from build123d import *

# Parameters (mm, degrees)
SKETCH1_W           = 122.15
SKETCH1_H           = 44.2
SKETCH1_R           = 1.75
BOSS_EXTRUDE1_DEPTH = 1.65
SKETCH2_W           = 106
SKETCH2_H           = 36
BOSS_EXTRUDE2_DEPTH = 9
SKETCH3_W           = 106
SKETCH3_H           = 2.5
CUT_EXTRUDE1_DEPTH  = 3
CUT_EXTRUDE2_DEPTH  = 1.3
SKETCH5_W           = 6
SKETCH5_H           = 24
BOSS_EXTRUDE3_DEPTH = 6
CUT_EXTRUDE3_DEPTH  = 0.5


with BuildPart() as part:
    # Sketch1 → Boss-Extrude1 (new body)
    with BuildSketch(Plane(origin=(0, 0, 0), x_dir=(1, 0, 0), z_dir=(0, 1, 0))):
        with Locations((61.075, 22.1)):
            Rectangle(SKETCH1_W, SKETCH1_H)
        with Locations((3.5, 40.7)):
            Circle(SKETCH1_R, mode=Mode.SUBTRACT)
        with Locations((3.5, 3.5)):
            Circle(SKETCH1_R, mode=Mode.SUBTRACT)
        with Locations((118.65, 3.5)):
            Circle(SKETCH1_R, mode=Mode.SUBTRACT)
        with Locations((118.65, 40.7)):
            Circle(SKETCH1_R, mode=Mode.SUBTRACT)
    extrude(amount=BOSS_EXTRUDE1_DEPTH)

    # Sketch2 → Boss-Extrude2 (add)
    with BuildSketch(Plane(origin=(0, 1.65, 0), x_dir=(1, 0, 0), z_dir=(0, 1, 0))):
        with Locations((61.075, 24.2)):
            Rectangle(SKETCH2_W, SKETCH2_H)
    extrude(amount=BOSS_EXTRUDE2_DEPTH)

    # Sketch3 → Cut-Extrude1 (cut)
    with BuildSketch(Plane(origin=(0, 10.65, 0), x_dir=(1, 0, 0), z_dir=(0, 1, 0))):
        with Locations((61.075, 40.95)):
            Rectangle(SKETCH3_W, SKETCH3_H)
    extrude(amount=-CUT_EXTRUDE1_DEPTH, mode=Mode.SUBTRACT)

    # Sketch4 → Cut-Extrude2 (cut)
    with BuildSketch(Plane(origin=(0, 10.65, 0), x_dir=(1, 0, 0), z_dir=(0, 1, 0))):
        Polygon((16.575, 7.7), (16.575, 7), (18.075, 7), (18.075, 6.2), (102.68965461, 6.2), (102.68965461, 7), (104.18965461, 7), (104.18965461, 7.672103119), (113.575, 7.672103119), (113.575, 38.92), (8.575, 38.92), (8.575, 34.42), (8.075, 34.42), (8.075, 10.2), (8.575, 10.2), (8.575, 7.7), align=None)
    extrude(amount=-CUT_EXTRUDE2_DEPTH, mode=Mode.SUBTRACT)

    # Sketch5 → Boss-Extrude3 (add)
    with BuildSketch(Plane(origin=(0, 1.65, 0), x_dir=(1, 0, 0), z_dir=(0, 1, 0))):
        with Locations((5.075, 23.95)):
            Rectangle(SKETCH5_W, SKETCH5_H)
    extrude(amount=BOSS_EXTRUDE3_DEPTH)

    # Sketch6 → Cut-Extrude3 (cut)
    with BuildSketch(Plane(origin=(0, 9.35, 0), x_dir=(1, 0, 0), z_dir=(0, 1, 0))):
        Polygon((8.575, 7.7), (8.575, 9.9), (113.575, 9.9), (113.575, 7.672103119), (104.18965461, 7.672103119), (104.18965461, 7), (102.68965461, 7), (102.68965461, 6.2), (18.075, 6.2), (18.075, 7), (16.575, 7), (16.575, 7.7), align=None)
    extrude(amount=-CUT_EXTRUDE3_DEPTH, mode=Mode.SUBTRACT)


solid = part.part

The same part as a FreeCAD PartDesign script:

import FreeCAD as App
import Part
import Sketcher

V = App.Vector
Q = App.Units.Quantity


def add_polygon(sketch, points):
    """Adds a closed chain of lines whose ends are joined by coincident constraints."""
    first, n = sketch.GeometryCount, len(points)
    for a, b in zip(points, points[1:] + points[:1]):
        sketch.addGeometry(Part.LineSegment(App.Vector(*a, 0), App.Vector(*b, 0)), False)
    for i in range(n):
        sketch.addConstraint(Sketcher.Constraint("Coincident", first + i, 2, first + (i + 1) % n, 1))

doc = App.newDocument("Part")
body = doc.addObject("PartDesign::Body", "Body")

sketch1 = doc.addObject("Sketcher::SketchObject", "Sketch")
body.addObject(sketch1)
sketch1.AttachmentSupport = (doc.XZ_Plane, [""])
sketch1.MapMode = "FlatFace"
add_polygon(sketch1, [(0, -44.2), (0, 0), (122.2, 0), (122.2, -44.2)])
sketch1.addGeometry(Part.Circle(V(3.5, -3.5, 0), V(0, 0, 1), 1.8), False)
sketch1.addGeometry(Part.Circle(V(118.7, -3.5, 0), V(0, 0, 1), 1.8), False)
sketch1.addGeometry(Part.Circle(V(3.5, -40.7, 0), V(0, 0, 1), 1.8), False)
sketch1.addGeometry(Part.Circle(V(118.7, -40.7, 0), V(0, 0, 1), 1.8), False)
sketch1.addConstraint([
    Sketcher.Constraint("Vertical", 0),
    Sketcher.Constraint("Horizontal", 1),
    Sketcher.Constraint("Vertical", 2),
    Sketcher.Constraint("Horizontal", 3),
    Sketcher.Constraint("Coincident", 0, 2, -1, 1),
    Sketcher.Constraint("Equal", 4, 5),
    Sketcher.Constraint("Equal", 5, 6),
    Sketcher.Constraint("Equal", 6, 7),
    Sketcher.Constraint("Horizontal", 4, 3, 5, 3),
    Sketcher.Constraint("Horizontal", 6, 3, 7, 3),
    Sketcher.Constraint("Vertical", 4, 3, 6, 3),
    Sketcher.Constraint("Vertical", 5, 3, 7, 3),
    Sketcher.Constraint("Diameter", 4, Q("3.5 mm")),
    Sketcher.Constraint("DistanceY", 0, 1, 0, 2, Q("44.2 mm")),
    Sketcher.Constraint("DistanceX", 1, 1, 1, 2, Q("122.15 mm")),
    Sketcher.Constraint("DistanceX", -1, 1, 4, 3, Q("3.5 mm")),
    Sketcher.Constraint("DistanceY", 4, 3, -1, 1, Q("3.5 mm")),
    Sketcher.Constraint("DistanceY", 6, 3, -1, 1, Q("40.7 mm")),
    Sketcher.Constraint("DistanceX", 5, 3, 1, 2, Q("3.5 mm")),
])
pad1 = doc.addObject("PartDesign::Pad", "Pad")
body.addObject(pad1)
pad1.Profile = sketch1
pad1.Length = 1.65
pad1.Reversed = True

sketch2 = doc.addObject("Sketcher::SketchObject", "Sketch001")
body.addObject(sketch2)
sketch2.AttachmentSupport = (doc.XZ_Plane, [""])
sketch2.MapMode = "FlatFace"
sketch2.AttachmentOffset = App.Placement(V(0, 0, -1.65), App.Rotation())
add_polygon(sketch2, [(8, -42), (8, -6), (114, -6), (114, -42)])
sketch2.addConstraint([
    Sketcher.Constraint("Vertical", 0),
    Sketcher.Constraint("Horizontal", 1),
    Sketcher.Constraint("Vertical", 2),
    Sketcher.Constraint("Horizontal", 3),
    Sketcher.Constraint("DistanceX", 1, 1, 1, 2, Q("106 mm")),
    Sketcher.Constraint("DistanceY", 0, 1, 0, 2, Q("36 mm")),
    Sketcher.Constraint("DistanceY", 0, 2, -1, 1, Q("6.2 mm")),
    Sketcher.Constraint("DistanceX", -1, 1, 0, 2, Q("8.075 mm")),
])
pad2 = doc.addObject("PartDesign::Pad", "Pad001")
body.addObject(pad2)
pad2.Profile = sketch2
pad2.Length = 9
pad2.Reversed = True

sketch3 = doc.addObject("Sketcher::SketchObject", "Sketch002")
body.addObject(sketch3)
sketch3.AttachmentSupport = (doc.XZ_Plane, [""])
sketch3.MapMode = "FlatFace"
sketch3.AttachmentOffset = App.Placement(V(0, 0, -10.65), App.Rotation())
add_polygon(sketch3, [(8.1, -42.2), (8.1, -39.7), (114.1, -39.7), (114.1, -42.2)])
sketch3.addConstraint([
    Sketcher.Constraint("Vertical", 0),
    Sketcher.Constraint("Horizontal", 1),
    Sketcher.Constraint("Vertical", 2),
    Sketcher.Constraint("Horizontal", 3),
    Sketcher.Constraint("DistanceX", 1, 1, 1, 2, Q("106 mm")),
    Sketcher.Constraint("DistanceY", 0, 1, 0, 2, Q("2.5 mm")),
    Sketcher.Constraint("DistanceY", 0, 2, -1, 1, Q("39.7 mm")),
    Sketcher.Constraint("DistanceX", -1, 1, 0, 2, Q("8.075 mm")),
])
pocket1 = doc.addObject("PartDesign::Pocket", "Pocket")
body.addObject(pocket1)
pocket1.Profile = sketch3
pocket1.Length = 3
pocket1.Reversed = True

sketch4 = doc.addObject("Sketcher::SketchObject", "Sketch003")
body.addObject(sketch4)
sketch4.AttachmentSupport = (doc.XZ_Plane, [""])
sketch4.MapMode = "FlatFace"
sketch4.AttachmentOffset = App.Placement(V(0, 0, -10.65), App.Rotation())
add_polygon(sketch4, [(16.6, -7.7), (16.6, -7), (18.1, -7), (18.1, -6.2), (102.7, -6.2), (102.7, -7), (104.2, -7), (104.2, -7.7), (113.6, -7.7), (113.6, -38.9), (8.6, -38.9), (8.6, -34.4), (8.1, -34.4), (8.1, -10.2), (8.6, -10.2), (8.6, -7.7)])
sketch4.addConstraint([
    Sketcher.Constraint("Vertical", 0),
    Sketcher.Constraint("Horizontal", 1),
    Sketcher.Constraint("Vertical", 2),
    Sketcher.Constraint("Horizontal", 3),
    Sketcher.Constraint("Vertical", 4),
    Sketcher.Constraint("Horizontal", 5),
    Sketcher.Constraint("Vertical", 6),
    Sketcher.Constraint("Horizontal", 7),
    Sketcher.Constraint("Vertical", 8),
    Sketcher.Constraint("Horizontal", 9),
    Sketcher.Constraint("Vertical", 10),
    Sketcher.Constraint("Horizontal", 11),
    Sketcher.Constraint("Vertical", 12),
    Sketcher.Constraint("Horizontal", 13),
    Sketcher.Constraint("Vertical", 14),
    Sketcher.Constraint("Horizontal", 15),
    Sketcher.Constraint("Horizontal", 1, 2, 4, 2),
    Sketcher.Constraint("Vertical", 10, 2, 13, 2),
    Sketcher.Constraint("Equal", 1, 5),
    Sketcher.Constraint("DistanceX", 9, 2, 9, 1, Q("105 mm")),
    Sketcher.Constraint("DistanceX", 15, 1, 15, 2, Q("8 mm")),
    Sketcher.Constraint("DistanceX", 1, 1, 1, 2, Q("1.5 mm")),
    Sketcher.Constraint("DistanceX", 11, 2, 11, 1, Q("0.5 mm")),
    Sketcher.Constraint("DistanceY", 0, 1, 0, 2, Q("0.7 mm")),
    Sketcher.Constraint("DistanceY", 2, 1, 2, 2, Q("0.8 mm")),
    Sketcher.Constraint("DistanceY", 10, 1, 10, 2, Q("4.5 mm")),
    Sketcher.Constraint("DistanceY", 14, 1, 14, 2, Q("2.5 mm")),
    Sketcher.Constraint("DistanceY", 0, 2, -1, 1, Q("7 mm")),
    Sketcher.Constraint("DistanceY", 12, 1, 12, 2, Q("24.22 mm")),
    Sketcher.Constraint("DistanceX", -1, 1, 0, 2, Q("16.575 mm")),
    Sketcher.Constraint("DistanceX", 3, 1, 3, 2, Q("84.614655 mm")),
    Sketcher.Constraint("DistanceY", 6, 2, 6, 1, Q("0.672103 mm")),
])
pocket2 = doc.addObject("PartDesign::Pocket", "Pocket001")
body.addObject(pocket2)
pocket2.Profile = sketch4
pocket2.Length = 1.3
pocket2.Reversed = True

sketch5 = doc.addObject("Sketcher::SketchObject", "Sketch004")
body.addObject(sketch5)
sketch5.AttachmentSupport = (doc.XZ_Plane, [""])
sketch5.MapMode = "FlatFace"
sketch5.AttachmentOffset = App.Placement(V(0, 0, -1.65), App.Rotation())
add_polygon(sketch5, [(2, -36), (2, -12), (8, -12), (8, -36)])
sketch5.addConstraint([
    Sketcher.Constraint("Vertical", 0),
    Sketcher.Constraint("Horizontal", 1),
    Sketcher.Constraint("Vertical", 2),
    Sketcher.Constraint("Horizontal", 3),
    Sketcher.Constraint("DistanceX", 1, 1, 1, 2, Q("6 mm")),
    Sketcher.Constraint("DistanceY", 0, 1, 0, 2, Q("24 mm")),
    Sketcher.Constraint("DistanceY", 0, 2, -1, 1, Q("11.95 mm")),
    Sketcher.Constraint("DistanceX", -1, 1, 0, 2, Q("2.075 mm")),
])
pad3 = doc.addObject("PartDesign::Pad", "Pad002")
body.addObject(pad3)
pad3.Profile = sketch5
pad3.Length = 6
pad3.Reversed = True

sketch6 = doc.addObject("Sketcher::SketchObject", "Sketch005")
body.addObject(sketch6)
sketch6.AttachmentSupport = (doc.XZ_Plane, [""])
sketch6.MapMode = "FlatFace"
sketch6.AttachmentOffset = App.Placement(V(0, 0, -9.35), App.Rotation())
add_polygon(sketch6, [(8.6, -9.9), (8.6, -7.7), (16.6, -7.7), (16.6, -7), (18.1, -7), (18.1, -6.2), (102.7, -6.2), (102.7, -7), (104.2, -7), (104.2, -7.7), (113.6, -7.7), (113.6, -9.9)])
sketch6.addConstraint([
    Sketcher.Constraint("Vertical", 0),
    Sketcher.Constraint("Horizontal", 1),
    Sketcher.Constraint("Vertical", 2),
    Sketcher.Constraint("Horizontal", 3),
    Sketcher.Constraint("Vertical", 4),
    Sketcher.Constraint("Horizontal", 5),
    Sketcher.Constraint("Vertical", 6),
    Sketcher.Constraint("Horizontal", 7),
    Sketcher.Constraint("Vertical", 8),
    Sketcher.Constraint("Horizontal", 9),
    Sketcher.Constraint("Vertical", 10),
    Sketcher.Constraint("Horizontal", 11),
    Sketcher.Constraint("Horizontal", 3, 2, 6, 2),
    Sketcher.Constraint("Equal", 3, 7),
    Sketcher.Constraint("DistanceX", 1, 1, 1, 2, Q("8 mm")),
    Sketcher.Constraint("DistanceX", 11, 2, 11, 1, Q("105 mm")),
    Sketcher.Constraint("DistanceX", 3, 1, 3, 2, Q("1.5 mm")),
    Sketcher.Constraint("DistanceY", 0, 1, 0, 2, Q("2.2 mm")),
    Sketcher.Constraint("DistanceY", 2, 1, 2, 2, Q("0.7 mm")),
    Sketcher.Constraint("DistanceY", 4, 1, 4, 2, Q("0.8 mm")),
    Sketcher.Constraint("DistanceY", 2, 2, -1, 1, Q("7 mm")),
    Sketcher.Constraint("DistanceX", -1, 1, 0, 2, Q("8.575 mm")),
    Sketcher.Constraint("DistanceX", 5, 1, 5, 2, Q("84.614655 mm")),
    Sketcher.Constraint("DistanceY", 8, 2, 8, 1, Q("0.672103 mm")),
])
pocket3 = doc.addObject("PartDesign::Pocket", "Pocket002")
body.addObject(pocket3)
pocket3.Profile = sketch6
pocket3.Length = 0.5
pocket3.Reversed = True

doc.recompute()
